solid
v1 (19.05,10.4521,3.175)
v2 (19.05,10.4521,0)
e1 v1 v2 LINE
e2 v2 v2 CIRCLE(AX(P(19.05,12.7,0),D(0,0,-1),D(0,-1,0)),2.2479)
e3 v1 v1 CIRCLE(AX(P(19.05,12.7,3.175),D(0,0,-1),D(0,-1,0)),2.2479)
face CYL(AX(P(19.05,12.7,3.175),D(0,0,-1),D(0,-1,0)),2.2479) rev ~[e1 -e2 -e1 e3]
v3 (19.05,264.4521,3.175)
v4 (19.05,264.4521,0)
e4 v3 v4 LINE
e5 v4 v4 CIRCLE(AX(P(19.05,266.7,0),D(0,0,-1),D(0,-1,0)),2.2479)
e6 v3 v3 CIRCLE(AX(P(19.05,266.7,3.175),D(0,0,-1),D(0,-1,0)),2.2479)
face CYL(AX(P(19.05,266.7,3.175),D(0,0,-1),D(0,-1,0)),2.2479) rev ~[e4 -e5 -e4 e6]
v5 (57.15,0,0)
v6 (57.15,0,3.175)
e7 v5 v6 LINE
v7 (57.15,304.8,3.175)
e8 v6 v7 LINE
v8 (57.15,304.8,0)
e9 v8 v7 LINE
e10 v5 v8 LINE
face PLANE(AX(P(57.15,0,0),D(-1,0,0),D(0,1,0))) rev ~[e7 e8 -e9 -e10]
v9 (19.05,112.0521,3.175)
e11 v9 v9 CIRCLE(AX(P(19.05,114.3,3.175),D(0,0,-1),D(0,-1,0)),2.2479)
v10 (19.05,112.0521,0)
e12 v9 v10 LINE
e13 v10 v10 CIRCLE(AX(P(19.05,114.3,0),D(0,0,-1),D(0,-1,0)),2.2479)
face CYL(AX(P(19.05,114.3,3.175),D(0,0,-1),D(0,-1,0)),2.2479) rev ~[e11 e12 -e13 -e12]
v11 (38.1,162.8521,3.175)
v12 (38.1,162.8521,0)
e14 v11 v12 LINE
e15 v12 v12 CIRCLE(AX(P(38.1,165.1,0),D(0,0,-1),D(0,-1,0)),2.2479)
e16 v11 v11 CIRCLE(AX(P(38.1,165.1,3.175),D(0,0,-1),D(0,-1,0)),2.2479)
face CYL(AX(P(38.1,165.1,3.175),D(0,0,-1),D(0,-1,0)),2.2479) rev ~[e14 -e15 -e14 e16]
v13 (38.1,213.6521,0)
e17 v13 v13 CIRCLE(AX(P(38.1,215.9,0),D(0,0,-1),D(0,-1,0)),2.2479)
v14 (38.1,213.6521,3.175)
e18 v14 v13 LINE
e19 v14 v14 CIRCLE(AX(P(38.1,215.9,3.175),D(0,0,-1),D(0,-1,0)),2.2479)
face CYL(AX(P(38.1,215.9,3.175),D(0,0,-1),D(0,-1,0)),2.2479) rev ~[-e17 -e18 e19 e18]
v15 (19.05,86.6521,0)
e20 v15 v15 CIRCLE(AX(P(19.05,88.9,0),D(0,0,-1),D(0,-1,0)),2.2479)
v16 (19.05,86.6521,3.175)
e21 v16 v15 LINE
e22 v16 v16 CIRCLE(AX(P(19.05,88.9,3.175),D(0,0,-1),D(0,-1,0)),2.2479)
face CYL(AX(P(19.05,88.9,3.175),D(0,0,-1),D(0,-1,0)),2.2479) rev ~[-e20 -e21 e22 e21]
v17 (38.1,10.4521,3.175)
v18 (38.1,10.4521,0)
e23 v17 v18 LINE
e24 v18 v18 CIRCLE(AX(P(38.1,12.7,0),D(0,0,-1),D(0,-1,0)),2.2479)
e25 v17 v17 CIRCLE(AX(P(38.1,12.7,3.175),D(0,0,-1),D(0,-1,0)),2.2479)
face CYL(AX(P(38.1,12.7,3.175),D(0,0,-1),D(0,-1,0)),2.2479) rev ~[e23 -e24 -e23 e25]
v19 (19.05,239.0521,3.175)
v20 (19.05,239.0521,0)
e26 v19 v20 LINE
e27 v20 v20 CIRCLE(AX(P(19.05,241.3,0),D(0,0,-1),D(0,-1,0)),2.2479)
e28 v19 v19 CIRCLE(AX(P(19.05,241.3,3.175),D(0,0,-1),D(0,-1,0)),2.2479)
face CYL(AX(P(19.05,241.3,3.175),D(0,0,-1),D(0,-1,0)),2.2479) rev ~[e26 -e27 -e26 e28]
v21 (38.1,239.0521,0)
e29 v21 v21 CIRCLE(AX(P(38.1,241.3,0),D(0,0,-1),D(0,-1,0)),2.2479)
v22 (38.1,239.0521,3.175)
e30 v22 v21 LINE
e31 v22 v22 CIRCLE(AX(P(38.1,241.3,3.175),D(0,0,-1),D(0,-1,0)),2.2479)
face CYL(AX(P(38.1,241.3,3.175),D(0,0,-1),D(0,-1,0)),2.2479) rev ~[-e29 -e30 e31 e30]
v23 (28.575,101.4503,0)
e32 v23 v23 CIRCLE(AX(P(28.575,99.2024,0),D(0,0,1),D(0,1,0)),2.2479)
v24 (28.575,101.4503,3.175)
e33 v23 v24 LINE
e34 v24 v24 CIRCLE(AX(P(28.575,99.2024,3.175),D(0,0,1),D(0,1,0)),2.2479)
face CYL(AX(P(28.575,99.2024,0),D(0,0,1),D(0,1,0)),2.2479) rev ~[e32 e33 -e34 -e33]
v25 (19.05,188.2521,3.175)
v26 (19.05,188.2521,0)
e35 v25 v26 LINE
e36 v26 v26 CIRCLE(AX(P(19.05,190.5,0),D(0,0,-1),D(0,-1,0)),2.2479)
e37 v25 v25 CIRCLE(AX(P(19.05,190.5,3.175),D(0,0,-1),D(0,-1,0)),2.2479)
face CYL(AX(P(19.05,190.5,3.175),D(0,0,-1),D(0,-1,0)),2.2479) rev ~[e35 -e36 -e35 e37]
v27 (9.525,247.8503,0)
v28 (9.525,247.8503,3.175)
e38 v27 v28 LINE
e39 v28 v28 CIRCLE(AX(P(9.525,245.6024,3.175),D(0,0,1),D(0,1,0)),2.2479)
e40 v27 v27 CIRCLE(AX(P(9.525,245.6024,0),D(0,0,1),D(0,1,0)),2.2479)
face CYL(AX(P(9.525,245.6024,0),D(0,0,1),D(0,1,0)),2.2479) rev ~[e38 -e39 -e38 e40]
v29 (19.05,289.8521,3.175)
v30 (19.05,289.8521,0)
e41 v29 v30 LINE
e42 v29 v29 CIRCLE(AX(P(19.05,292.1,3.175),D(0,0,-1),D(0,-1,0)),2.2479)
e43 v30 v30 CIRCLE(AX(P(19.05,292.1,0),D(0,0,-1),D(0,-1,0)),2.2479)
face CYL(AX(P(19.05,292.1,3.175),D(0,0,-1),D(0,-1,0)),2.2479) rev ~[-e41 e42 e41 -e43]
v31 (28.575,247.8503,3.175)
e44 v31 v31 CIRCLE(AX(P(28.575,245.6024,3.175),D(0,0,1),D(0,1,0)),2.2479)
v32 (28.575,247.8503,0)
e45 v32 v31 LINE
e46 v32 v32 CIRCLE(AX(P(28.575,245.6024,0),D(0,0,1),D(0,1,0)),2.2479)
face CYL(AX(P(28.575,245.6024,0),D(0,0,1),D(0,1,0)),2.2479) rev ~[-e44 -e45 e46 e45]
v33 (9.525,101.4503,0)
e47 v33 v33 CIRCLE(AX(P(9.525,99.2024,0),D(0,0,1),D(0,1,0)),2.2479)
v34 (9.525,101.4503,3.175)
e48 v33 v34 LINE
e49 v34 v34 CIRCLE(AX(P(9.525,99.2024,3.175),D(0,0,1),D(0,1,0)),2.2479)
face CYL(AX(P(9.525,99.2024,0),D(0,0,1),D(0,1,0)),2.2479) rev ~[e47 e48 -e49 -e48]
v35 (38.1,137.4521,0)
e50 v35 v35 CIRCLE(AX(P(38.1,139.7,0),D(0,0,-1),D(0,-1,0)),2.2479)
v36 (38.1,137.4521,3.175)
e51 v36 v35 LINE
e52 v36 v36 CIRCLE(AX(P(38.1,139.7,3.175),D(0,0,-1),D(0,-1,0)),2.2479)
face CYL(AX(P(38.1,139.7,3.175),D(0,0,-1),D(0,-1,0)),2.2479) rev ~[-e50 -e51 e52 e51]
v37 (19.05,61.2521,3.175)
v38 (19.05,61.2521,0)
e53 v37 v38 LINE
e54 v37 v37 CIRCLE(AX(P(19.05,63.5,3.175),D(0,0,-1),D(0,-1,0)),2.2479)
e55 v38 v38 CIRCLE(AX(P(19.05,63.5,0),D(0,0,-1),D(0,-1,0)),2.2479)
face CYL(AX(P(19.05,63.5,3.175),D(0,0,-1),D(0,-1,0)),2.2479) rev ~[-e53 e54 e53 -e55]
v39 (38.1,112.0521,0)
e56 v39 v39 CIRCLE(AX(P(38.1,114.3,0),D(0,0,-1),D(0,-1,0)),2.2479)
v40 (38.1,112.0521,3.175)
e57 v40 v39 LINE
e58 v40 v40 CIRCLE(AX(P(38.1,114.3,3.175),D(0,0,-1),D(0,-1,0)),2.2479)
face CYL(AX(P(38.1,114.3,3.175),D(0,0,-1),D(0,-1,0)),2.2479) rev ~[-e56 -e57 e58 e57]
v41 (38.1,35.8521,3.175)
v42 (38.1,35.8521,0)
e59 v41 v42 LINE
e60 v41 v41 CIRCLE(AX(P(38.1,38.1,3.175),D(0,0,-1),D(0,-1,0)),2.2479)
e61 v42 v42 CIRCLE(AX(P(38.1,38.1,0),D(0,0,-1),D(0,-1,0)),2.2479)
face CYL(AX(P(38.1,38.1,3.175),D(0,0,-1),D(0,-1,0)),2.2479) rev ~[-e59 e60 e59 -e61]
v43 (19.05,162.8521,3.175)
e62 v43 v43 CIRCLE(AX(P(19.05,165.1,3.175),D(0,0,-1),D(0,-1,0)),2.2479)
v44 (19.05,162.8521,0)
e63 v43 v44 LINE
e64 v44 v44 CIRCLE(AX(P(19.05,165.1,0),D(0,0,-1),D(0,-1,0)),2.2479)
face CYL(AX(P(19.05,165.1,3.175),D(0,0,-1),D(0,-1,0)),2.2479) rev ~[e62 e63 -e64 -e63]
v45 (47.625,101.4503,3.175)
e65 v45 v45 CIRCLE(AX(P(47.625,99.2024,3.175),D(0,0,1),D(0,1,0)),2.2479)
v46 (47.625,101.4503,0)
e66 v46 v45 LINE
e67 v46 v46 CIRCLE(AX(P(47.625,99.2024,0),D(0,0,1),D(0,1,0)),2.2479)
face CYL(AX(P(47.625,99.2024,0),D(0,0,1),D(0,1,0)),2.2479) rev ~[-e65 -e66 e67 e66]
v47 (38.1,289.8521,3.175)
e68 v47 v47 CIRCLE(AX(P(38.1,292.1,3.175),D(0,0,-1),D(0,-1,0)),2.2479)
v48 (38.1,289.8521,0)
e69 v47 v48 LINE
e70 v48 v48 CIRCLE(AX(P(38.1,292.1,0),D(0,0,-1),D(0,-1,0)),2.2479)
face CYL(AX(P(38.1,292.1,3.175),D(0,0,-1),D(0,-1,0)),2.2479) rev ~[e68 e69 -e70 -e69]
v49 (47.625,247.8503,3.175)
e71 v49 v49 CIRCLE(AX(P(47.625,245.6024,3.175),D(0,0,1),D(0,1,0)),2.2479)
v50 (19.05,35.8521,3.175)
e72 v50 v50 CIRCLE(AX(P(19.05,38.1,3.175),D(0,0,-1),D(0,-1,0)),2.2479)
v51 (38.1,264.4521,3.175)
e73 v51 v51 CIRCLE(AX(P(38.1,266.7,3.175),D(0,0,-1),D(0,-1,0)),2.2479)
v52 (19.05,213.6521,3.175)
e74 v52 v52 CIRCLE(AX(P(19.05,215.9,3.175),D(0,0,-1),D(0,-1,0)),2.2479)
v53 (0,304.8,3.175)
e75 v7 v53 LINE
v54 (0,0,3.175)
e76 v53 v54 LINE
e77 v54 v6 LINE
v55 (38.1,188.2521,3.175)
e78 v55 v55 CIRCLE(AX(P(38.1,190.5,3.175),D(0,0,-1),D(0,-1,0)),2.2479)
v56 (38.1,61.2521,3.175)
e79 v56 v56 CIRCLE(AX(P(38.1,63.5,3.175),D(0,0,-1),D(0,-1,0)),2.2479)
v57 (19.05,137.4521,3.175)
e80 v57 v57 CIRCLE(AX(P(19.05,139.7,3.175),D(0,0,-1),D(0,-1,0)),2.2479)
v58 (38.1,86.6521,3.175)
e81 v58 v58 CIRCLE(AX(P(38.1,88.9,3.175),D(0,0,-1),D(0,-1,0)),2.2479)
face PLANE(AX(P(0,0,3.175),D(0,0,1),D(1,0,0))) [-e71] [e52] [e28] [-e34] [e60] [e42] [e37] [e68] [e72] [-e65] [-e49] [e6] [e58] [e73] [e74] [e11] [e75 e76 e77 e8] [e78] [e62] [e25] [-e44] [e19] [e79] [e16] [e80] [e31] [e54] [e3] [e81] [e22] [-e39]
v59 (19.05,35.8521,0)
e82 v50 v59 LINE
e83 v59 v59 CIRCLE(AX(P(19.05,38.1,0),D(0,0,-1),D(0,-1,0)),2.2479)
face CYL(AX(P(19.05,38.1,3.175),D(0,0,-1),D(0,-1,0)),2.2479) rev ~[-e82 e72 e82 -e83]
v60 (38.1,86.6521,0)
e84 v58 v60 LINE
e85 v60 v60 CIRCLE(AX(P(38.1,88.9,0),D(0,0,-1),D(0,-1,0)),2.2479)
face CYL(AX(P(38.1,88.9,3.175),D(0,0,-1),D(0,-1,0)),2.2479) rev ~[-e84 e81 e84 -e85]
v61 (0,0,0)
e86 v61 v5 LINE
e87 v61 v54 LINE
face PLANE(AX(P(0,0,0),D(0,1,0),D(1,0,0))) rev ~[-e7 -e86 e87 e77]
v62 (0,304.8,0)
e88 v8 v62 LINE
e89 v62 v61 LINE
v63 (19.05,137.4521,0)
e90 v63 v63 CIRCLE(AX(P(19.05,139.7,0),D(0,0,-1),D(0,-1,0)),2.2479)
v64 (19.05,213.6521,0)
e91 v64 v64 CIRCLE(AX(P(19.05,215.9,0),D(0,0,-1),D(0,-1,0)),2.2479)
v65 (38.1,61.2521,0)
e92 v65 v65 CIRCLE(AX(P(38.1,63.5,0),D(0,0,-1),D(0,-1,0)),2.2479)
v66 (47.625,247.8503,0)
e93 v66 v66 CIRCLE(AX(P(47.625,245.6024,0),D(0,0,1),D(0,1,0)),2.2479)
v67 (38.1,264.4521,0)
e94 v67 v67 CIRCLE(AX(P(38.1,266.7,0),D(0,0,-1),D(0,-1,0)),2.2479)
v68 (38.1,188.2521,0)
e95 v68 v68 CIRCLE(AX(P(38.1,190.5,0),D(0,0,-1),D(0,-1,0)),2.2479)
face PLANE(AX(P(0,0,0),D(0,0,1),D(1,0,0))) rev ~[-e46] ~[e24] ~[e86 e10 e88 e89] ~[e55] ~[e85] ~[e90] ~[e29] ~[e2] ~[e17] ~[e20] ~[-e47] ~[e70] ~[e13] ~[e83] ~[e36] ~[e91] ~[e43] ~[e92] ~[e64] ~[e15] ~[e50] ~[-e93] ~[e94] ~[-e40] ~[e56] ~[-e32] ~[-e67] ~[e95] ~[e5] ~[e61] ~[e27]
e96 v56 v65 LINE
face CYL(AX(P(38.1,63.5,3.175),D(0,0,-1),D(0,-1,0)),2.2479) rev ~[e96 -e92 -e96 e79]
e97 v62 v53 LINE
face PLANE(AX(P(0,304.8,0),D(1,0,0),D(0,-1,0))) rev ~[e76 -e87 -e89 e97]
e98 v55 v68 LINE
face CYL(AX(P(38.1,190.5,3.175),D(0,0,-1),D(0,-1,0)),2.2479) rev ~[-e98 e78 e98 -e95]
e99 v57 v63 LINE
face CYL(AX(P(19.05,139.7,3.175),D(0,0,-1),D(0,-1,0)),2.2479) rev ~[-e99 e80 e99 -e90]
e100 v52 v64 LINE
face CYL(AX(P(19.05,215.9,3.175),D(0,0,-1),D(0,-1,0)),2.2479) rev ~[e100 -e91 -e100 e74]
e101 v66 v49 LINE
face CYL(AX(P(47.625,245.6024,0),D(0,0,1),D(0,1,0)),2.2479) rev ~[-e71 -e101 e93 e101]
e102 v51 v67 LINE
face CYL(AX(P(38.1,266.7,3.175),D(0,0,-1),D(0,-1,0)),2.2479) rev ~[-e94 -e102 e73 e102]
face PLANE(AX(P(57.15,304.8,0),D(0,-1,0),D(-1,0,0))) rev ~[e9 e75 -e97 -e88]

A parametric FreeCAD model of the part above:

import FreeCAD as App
import Part
import Sketcher

V = App.Vector
Q = App.Units.Quantity


def add_polygon(sketch, points):
    """Adds a closed chain of lines whose ends are joined by coincident constraints."""
    first, n = sketch.GeometryCount, len(points)
    for a, b in zip(points, points[1:] + points[:1]):
        sketch.addGeometry(Part.LineSegment(App.Vector(*a, 0), App.Vector(*b, 0)), False)
    for i in range(n):
        sketch.addConstraint(Sketcher.Constraint("Coincident", first + i, 2, first + (i + 1) % n, 1))

doc = App.newDocument("Part")
params = doc.addObject("Spreadsheet::Sheet", "Params")
for row, (alias, value) in enumerate([
    ("sketch1_height", "12 in"),
    ("sketch1_width", "2.25 in"),
    ("pad1_length", "0.125 in"),
    ("sketch2_diameter", "0.177 in"),
    ("hole_diameter", "0.177 in"),
    ("hole_depth", "1 in"),
    ("sketch3_diameter", "0.177 in"),
    ("hole2_diameter", "0.177 in"),
    ("hole2_depth", "1 in"),
], start=1):
    params.set(f"A{row}", alias)
    params.set(f"B{row}", "=" + value)
    params.setAlias(f"B{row}", alias)

body = doc.addObject("PartDesign::Body", "Body")

# Sketch on XY plane
sketch1 = body.newObject("Sketcher::SketchObject", "Sketch")
sketch1.AttachmentSupport = (doc.getObject("XY_Plane"), [""])
sketch1.MapMode = "FlatFace"
add_polygon(sketch1, [(0, 305), (0, 0), (57, 0), (57, 305)])  # lines 0-3
sketch1.addConstraint([
    Sketcher.Constraint("Vertical", 0),
    Sketcher.Constraint("Horizontal", 1),
    Sketcher.Constraint("Vertical", 2),
    Sketcher.Constraint("Horizontal", 3),
    Sketcher.Constraint("Coincident", 0, 2, -1, 1),
    Sketcher.Constraint("DistanceY", 0, 2, 0, 1, Q("12 in")),
    Sketcher.Constraint("DistanceX", 1, 1, 1, 2, Q("2.25 in")),
])
sketch1.setExpression("Constraints[9]", "Params.sketch1_height")
sketch1.setExpression("Constraints[10]", "Params.sketch1_width")
pad1 = body.newObject("PartDesign::Pad", "Pad")
pad1.Profile = sketch1
pad1.setExpression("Length", "Params.pad1_length")

# Sketch on XY plane
sketch2 = body.newObject("Sketcher::SketchObject", "Sketch001")
sketch2.AttachmentSupport = (doc.getObject("XY_Plane"), [""])
sketch2.MapMode = "FlatFace"
sketch2.addGeometry([
    Part.Circle(V(47.6, 99.2, 0), V(0, 0, 1), 2.2),  # 0
    Part.Circle(V(28.6, 99.2, 0), V(0, 0, 1), 2.2),  # 1
    Part.Circle(V(9.5, 99.2, 0), V(0, 0, 1), 2.2),  # 2
    Part.Circle(V(47.6, 245.6, 0), V(0, 0, 1), 2.2),  # 3
    Part.Circle(V(28.6, 245.6, 0), V(0, 0, 1), 2.2),  # 4
    Part.Circle(V(9.5, 245.6, 0), V(0, 0, 1), 2.2),  # 5
], False)
sketch2.addConstraint([
    Sketcher.Constraint("Equal", 0, 1),
    Sketcher.Constraint("Equal", 1, 2),
    Sketcher.Constraint("Equal", 2, 3),
    Sketcher.Constraint("Equal", 3, 4),
    Sketcher.Constraint("Equal", 4, 5),
    Sketcher.Constraint("Horizontal", 0, 3, 1, 3),
    Sketcher.Constraint("Horizontal", 1, 3, 2, 3),
    Sketcher.Constraint("Horizontal", 3, 3, 4, 3),
    Sketcher.Constraint("Horizontal", 4, 3, 5, 3),
    Sketcher.Constraint("Vertical", 0, 3, 3, 3),
    Sketcher.Constraint("Vertical", 1, 3, 4, 3),
    Sketcher.Constraint("Vertical", 2, 3, 5, 3),
    Sketcher.Constraint("Diameter", 0, Q("0.177 in")),
    Sketcher.Constraint("DistanceX", 2, 3, 0, 3, Q("1.5 in")),
    Sketcher.Constraint("DistanceX", 1, 3, 0, 3, Q("0.75 in")),
    Sketcher.Constraint("DistanceX", -1, 1, 0, 3, Q("1.875 in")),
    Sketcher.Constraint("DistanceY", -1, 1, 0, 3, Q("3.9056 in")),
    Sketcher.Constraint("DistanceY", -1, 1, 3, 3, 245.6024),
])
sketch2.setExpression("Constraints[12]", "Params.sketch2_diameter")
doc.recompute()
hole = body.newObject("PartDesign::Hole", "Hole")
hole.Profile = sketch2
hole.ThreadType = "None"
hole.setExpression("Diameter", "Params.hole_diameter")
hole.DepthType = "Dimension"
hole.setExpression("Depth", "Params.hole_depth")
hole.DrillPoint = "Angled"
hole.DrillPointAngle = 118
hole.Reversed = True

# Sketch on XY plane
sketch3 = body.newObject("Sketcher::SketchObject", "Sketch002")
sketch3.AttachmentSupport = (doc.getObject("XY_Plane"), [""])
sketch3.MapMode = "FlatFace"
sketch3.AttachmentOffset = App.Placement(V(0, 0, 0.125 * 25.4), App.Rotation())
sketch3.addGeometry([
    Part.Circle(V(19.1, 12.7, 0), V(0, 0, 1), 2.2),  # 0
    Part.Circle(V(38.1, 12.7, 0), V(0, 0, 1), 2.2),  # 1
    Part.Circle(V(19.1, 38.1, 0), V(0, 0, 1), 2.2),  # 2
    Part.Circle(V(38.1, 38.1, 0), V(0, 0, 1), 2.2),  # 3
    Part.Circle(V(19.1, 63.5, 0), V(0, 0, 1), 2.2),  # 4
    Part.Circle(V(38.1, 63.5, 0), V(0, 0, 1), 2.2),  # 5
    Part.Circle(V(19.1, 88.9, 0), V(0, 0, 1), 2.2),  # 6
    Part.Circle(V(38.1, 88.9, 0), V(0, 0, 1), 2.2),  # 7
    Part.Circle(V(19.1, 114.3, 0), V(0, 0, 1), 2.2),  # 8
    Part.Circle(V(38.1, 114.3, 0), V(0, 0, 1), 2.2),  # 9
    Part.Circle(V(19.1, 139.7, 0), V(0, 0, 1), 2.2),  # 10
    Part.Circle(V(38.1, 139.7, 0), V(0, 0, 1), 2.2),  # 11
    Part.Circle(V(19.1, 165.1, 0), V(0, 0, 1), 2.2),  # 12
    Part.Circle(V(38.1, 165.1, 0), V(0, 0, 1), 2.2),  # 13
    Part.Circle(V(19.1, 190.5, 0), V(0, 0, 1), 2.2),  # 14
    Part.Circle(V(38.1, 190.5, 0), V(0, 0, 1), 2.2),  # 15
    Part.Circle(V(19.1, 215.9, 0), V(0, 0, 1), 2.2),  # 16
    Part.Circle(V(38.1, 215.9, 0), V(0, 0, 1), 2.2),  # 17
    Part.Circle(V(19.1, 241.3, 0), V(0, 0, 1), 2.2),  # 18
    Part.Circle(V(38.1, 241.3, 0), V(0, 0, 1), 2.2),  # 19
    Part.Circle(V(19.1, 266.7, 0), V(0, 0, 1), 2.2),  # 20
    Part.Circle(V(38.1, 266.7, 0), V(0, 0, 1), 2.2),  # 21
    Part.Circle(V(19.1, 292.1, 0), V(0, 0, 1), 2.2),  # 22
    Part.Circle(V(38.1, 292.1, 0), V(0, 0, 1), 2.2),  # 23
], False)
sketch3.addConstraint([
    Sketcher.Constraint("Equal", 0, 1),
    Sketcher.Constraint("Equal", 1, 2),
    Sketcher.Constraint("Equal", 2, 3),
    Sketcher.Constraint("Equal", 3, 4),
    Sketcher.Constraint("Equal", 4, 5),
    Sketcher.Constraint("Equal", 5, 6),
    Sketcher.Constraint("Equal", 6, 7),
    Sketcher.Constraint("Equal", 7, 8),
    Sketcher.Constraint("Equal", 8, 9),
    Sketcher.Constraint("Equal", 9, 10),
    Sketcher.Constraint("Equal", 10, 11),
    Sketcher.Constraint("Equal", 11, 12),
    Sketcher.Constraint("Equal", 12, 13),
    Sketcher.Constraint("Equal", 13, 14),
    Sketcher.Constraint("Equal", 14, 15),
    Sketcher.Constraint("Equal", 15, 16),
    Sketcher.Constraint("Equal", 16, 17),
    Sketcher.Constraint("Equal", 17, 18),
    Sketcher.Constraint("Equal", 18, 19),
    Sketcher.Constraint("Equal", 19, 20),
    Sketcher.Constraint("Equal", 20, 21),
    Sketcher.Constraint("Equal", 21, 22),
    Sketcher.Constraint("Equal", 22, 23),
    Sketcher.Constraint("Horizontal", 0, 3, 1, 3),
    Sketcher.Constraint("Horizontal", 2, 3, 3, 3),
    Sketcher.Constraint("Horizontal", 4, 3, 5, 3),
    Sketcher.Constraint("Horizontal", 6, 3, 7, 3),
    Sketcher.Constraint("Horizontal", 8, 3, 9, 3),
    Sketcher.Constraint("Horizontal", 10, 3, 11, 3),
    Sketcher.Constraint("Horizontal", 12, 3, 13, 3),
    Sketcher.Constraint("Horizontal", 14, 3, 15, 3),
    Sketcher.Constraint("Horizontal", 16, 3, 17, 3),
    Sketcher.Constraint("Horizontal", 18, 3, 19, 3),
    Sketcher.Constraint("Horizontal", 20, 3, 21, 3),
    Sketcher.Constraint("Horizontal", 22, 3, 23, 3),
    Sketcher.Constraint("Vertical", 0, 3, 2, 3),
    Sketcher.Constraint("Vertical", 1, 3, 3, 3),
    Sketcher.Constraint("Vertical", 2, 3, 4, 3),
    Sketcher.Constraint("Vertical", 3, 3, 5, 3),
    Sketcher.Constraint("Vertical", 4, 3, 6, 3),
    Sketcher.Constraint("Vertical", 5, 3, 7, 3),
    Sketcher.Constraint("Vertical", 6, 3, 8, 3),
    Sketcher.Constraint("Vertical", 7, 3, 9, 3),
    Sketcher.Constraint("Vertical", 8, 3, 10, 3),
    Sketcher.Constraint("Vertical", 9, 3, 11, 3),
    Sketcher.Constraint("Vertical", 10, 3, 12, 3),
    Sketcher.Constraint("Vertical", 11, 3, 13, 3),
    Sketcher.Constraint("Vertical", 12, 3, 14, 3),
    Sketcher.Constraint("Vertical", 13, 3, 15, 3),
    Sketcher.Constraint("Vertical", 14, 3, 16, 3),
    Sketcher.Constraint("Vertical", 15, 3, 17, 3),
    Sketcher.Constraint("Vertical", 16, 3, 18, 3),
    Sketcher.Constraint("Vertical", 17, 3, 19, 3),
    Sketcher.Constraint("Vertical", 18, 3, 20, 3),
    Sketcher.Constraint("Vertical", 19, 3, 21, 3),
    Sketcher.Constraint("Vertical", 20, 3, 22, 3),
    Sketcher.Constraint("Vertical", 21, 3, 23, 3),
    Sketcher.Constraint("Diameter", 0, Q("0.177 in")),
    Sketcher.Constraint("DistanceY", 0, 3, 2, 3, Q("1 in")),
    Sketcher.Constraint("DistanceY", 2, 3, 4, 3, Q("1 in")),
    Sketcher.Constraint("DistanceY", 4, 3, 6, 3, Q("1 in")),
    Sketcher.Constraint("DistanceY", 6, 3, 8, 3, Q("1 in")),
    Sketcher.Constraint("DistanceY", 8, 3, 10, 3, Q("1 in")),
    Sketcher.Constraint("DistanceY", 10, 3, 12, 3, Q("1 in")),
    Sketcher.Constraint("DistanceY", 12, 3, 14, 3, Q("1 in")),
    Sketcher.Constraint("DistanceY", 14, 3, 16, 3, Q("1 in")),
    Sketcher.Constraint("DistanceY", 16, 3, 18, 3, Q("1 in")),
    Sketcher.Constraint("DistanceY", 18, 3, 20, 3, Q("1 in")),
    Sketcher.Constraint("DistanceY", 20, 3, 22, 3, Q("1 in")),
    Sketcher.Constraint("DistanceY", -1, 1, 0, 3, Q("0.5 in")),
    Sketcher.Constraint("DistanceX", -1, 1, 1, 3, Q("1.5 in")),
    Sketcher.Constraint("DistanceX", -1, 1, 0, 3, Q("0.75 in")),
])
sketch3.setExpression("Constraints[57]", "Params.sketch3_diameter")
doc.recompute()
hole2 = body.newObject("PartDesign::Hole", "Hole001")
hole2.Profile = sketch3
hole2.ThreadType = "None"
hole2.setExpression("Diameter", "Params.hole2_diameter")
hole2.DepthType = "Dimension"
hole2.setExpression("Depth", "Params.hole2_depth")
hole2.DrillPoint = "Angled"
hole2.DrillPointAngle = 118

doc.recompute()
